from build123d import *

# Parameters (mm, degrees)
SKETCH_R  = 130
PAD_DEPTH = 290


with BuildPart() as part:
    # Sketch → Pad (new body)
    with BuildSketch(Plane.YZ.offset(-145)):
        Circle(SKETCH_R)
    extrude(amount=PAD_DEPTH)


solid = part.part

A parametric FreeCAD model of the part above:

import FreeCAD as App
import Part
import Sketcher
from FreeCAD import Vector

doc = App.newDocument("Part")
body = doc.addObject("PartDesign::Body", "Body")

# Sketch on YZ plane
sketch1 = doc.addObject("Sketcher::SketchObject", "Sketch")
body.addObject(sketch1)
sketch1.AttachmentSupport = (doc.YZ_Plane, [""])
sketch1.MapMode = "FlatFace"
sketch1.AttachmentOffset = App.Placement(Vector(0, 0, -145), App.Rotation())
sketch1.addGeometry(Part.Circle(Vector(0, 0, 0), Vector(0, 0, 1), 130), False)
sketch1.addConstraint([
    Sketcher.Constraint("Coincident", 0, 3, -1, 1),
    Sketcher.Constraint("Diameter", 0, 260.0),
])
pad1 = doc.addObject("PartDesign::Pad", "Pad")
body.addObject(pad1)
pad1.Profile = sketch1
pad1.Length = 290

doc.recompute()
